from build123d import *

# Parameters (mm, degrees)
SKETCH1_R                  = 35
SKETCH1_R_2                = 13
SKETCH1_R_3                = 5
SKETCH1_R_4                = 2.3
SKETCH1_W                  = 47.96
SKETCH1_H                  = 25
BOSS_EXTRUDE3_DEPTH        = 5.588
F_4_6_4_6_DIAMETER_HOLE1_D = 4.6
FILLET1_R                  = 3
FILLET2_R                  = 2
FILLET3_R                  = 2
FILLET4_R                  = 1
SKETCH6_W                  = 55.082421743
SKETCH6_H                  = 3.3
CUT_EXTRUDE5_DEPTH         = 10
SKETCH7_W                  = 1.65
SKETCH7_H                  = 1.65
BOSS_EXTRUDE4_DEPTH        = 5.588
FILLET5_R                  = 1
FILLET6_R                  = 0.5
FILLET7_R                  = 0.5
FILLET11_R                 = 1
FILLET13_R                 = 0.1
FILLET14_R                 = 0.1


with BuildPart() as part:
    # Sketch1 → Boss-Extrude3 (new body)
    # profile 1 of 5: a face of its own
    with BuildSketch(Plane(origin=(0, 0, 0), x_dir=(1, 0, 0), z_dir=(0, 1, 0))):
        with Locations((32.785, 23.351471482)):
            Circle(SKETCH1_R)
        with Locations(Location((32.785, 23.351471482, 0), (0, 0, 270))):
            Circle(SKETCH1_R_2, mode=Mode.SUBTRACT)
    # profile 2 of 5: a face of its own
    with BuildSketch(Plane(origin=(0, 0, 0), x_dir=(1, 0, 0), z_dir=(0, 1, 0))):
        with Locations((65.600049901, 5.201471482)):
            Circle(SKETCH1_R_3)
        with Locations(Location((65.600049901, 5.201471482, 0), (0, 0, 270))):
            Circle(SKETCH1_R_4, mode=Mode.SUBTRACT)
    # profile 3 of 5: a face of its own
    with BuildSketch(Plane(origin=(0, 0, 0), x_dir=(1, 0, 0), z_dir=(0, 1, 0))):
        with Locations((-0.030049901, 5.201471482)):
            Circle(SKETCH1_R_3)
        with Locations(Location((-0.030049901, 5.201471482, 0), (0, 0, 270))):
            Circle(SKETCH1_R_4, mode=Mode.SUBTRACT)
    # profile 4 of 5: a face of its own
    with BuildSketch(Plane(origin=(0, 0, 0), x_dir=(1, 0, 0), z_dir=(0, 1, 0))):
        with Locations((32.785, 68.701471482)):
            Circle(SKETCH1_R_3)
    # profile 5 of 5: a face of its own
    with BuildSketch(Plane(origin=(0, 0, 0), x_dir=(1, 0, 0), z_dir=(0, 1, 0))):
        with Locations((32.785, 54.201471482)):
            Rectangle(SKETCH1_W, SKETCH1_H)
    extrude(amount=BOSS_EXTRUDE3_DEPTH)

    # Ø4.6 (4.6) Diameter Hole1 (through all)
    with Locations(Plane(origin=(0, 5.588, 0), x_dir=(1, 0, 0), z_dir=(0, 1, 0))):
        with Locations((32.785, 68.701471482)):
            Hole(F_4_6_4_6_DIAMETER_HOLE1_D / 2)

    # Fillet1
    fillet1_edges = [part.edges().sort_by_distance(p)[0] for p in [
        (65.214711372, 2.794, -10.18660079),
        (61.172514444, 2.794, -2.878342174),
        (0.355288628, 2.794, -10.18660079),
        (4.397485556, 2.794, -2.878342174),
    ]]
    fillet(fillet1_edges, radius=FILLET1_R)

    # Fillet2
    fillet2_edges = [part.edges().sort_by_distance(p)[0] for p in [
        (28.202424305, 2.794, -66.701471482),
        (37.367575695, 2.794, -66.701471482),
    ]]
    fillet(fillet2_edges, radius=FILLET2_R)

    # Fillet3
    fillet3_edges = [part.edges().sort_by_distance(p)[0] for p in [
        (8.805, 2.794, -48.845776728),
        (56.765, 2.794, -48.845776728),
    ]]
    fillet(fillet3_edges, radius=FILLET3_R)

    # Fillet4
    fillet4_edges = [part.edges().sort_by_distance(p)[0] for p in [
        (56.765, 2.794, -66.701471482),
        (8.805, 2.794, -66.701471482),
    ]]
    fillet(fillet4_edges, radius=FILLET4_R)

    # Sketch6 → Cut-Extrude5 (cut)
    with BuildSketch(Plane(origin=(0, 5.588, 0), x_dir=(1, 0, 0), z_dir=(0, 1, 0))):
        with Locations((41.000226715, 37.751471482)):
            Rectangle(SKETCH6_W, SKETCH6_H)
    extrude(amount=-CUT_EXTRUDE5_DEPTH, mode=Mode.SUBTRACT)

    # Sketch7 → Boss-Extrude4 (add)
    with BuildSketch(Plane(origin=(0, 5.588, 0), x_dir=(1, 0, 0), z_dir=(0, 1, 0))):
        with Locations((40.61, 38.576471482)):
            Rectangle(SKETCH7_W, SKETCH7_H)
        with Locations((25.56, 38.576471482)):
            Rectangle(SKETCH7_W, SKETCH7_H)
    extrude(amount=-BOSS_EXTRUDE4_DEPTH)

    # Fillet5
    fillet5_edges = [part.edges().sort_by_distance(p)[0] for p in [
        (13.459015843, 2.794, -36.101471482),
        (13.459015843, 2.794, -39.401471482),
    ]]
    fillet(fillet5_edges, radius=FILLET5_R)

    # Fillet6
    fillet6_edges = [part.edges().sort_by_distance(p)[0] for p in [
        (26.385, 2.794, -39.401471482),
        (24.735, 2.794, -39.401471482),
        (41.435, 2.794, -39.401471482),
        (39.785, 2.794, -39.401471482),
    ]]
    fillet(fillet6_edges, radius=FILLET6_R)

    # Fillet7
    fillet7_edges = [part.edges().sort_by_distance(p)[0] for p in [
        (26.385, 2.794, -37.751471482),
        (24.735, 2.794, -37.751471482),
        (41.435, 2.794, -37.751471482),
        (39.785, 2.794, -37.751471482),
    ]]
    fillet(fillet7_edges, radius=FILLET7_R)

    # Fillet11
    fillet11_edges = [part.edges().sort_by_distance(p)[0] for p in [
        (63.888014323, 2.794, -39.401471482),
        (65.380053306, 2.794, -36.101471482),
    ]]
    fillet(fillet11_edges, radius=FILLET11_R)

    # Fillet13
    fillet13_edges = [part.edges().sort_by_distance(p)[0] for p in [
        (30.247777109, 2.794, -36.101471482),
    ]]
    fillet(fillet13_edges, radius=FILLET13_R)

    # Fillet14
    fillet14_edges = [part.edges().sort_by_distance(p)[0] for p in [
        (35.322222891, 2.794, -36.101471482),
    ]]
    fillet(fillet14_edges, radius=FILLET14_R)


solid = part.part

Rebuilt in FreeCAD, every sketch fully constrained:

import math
import FreeCAD as App
import Part
import Sketcher
Q = App.Units.Quantity


def edges_at(feature, points):
    """Names of the edges that pass closest to the given points."""
    edges = feature.Shape.Edges
    near = lambda p: min(range(len(edges)), key=lambda i: edges[i].distToShape(Part.Vertex(*p))[0])
    return sorted({f"Edge{near(p) + 1}" for p in points})


def add_polygon(sketch, points):
    """Adds a closed chain of lines whose ends are joined by coincident constraints."""
    first, n = sketch.GeometryCount, len(points)
    for a, b in zip(points, points[1:] + points[:1]):
        sketch.addGeometry(Part.LineSegment(App.Vector(*a, 0), App.Vector(*b, 0)), False)
    for i in range(n):
        sketch.addConstraint(Sketcher.Constraint("Coincident", first + i, 2, first + (i + 1) % n, 1))

doc = App.newDocument("Part")
body = doc.addObject("PartDesign::Body", "Body")

# Sketch on XZ plane
sketch1 = body.newObject("Sketcher::SketchObject", "Sketch")
sketch1.AttachmentSupport = (doc.getObject("XZ_Plane"), [""])
sketch1.MapMode = "FlatFace"
sketch1.addGeometry(Part.ArcOfCircle(Part.Circle(App.Vector(32.785, -23.351471, 0), App.Vector(0, 0, 1), 35), math.radians(-46.753157), math.radians(22.094738)), False)
sketch1.addGeometry(Part.LineSegment(App.Vector(56.765, -48.845777, 0), App.Vector(56.765, -66.701471, 0)), False)
sketch1.addGeometry(Part.LineSegment(App.Vector(56.765, -66.701471, 0), App.Vector(37.367576, -66.701471, 0)), False)
sketch1.addGeometry(Part.ArcOfCircle(Part.Circle(App.Vector(32.785, -68.701471, 0), App.Vector(0, 0, 1), 5), math.radians(156.421822), math.radians(383.578178)), False)
sketch1.addGeometry(Part.LineSegment(App.Vector(28.202424, -66.701471, 0), App.Vector(8.805, -66.701471, 0)), False)
sketch1.addGeometry(Part.LineSegment(App.Vector(8.805, -66.701471, 0), App.Vector(8.805, -48.845777, 0)), False)
sketch1.addGeometry(Part.ArcOfCircle(Part.Circle(App.Vector(32.785, -23.351471, 0), App.Vector(0, 0, 1), 35), math.radians(157.905262), math.radians(226.753157)), False)
sketch1.addGeometry(Part.ArcOfCircle(Part.Circle(App.Vector(-0.03005, -5.201471, 0), App.Vector(0, 0, 1), 5), math.radians(27.686011), math.radians(274.420037)), False)
sketch1.addGeometry(Part.ArcOfCircle(Part.Circle(App.Vector(32.785, -23.351471, 0), App.Vector(0, 0, 1), 35), math.radians(35.799214), math.radians(144.200786)), False)
sketch1.addGeometry(Part.ArcOfCircle(Part.Circle(App.Vector(65.60005, -5.201471, 0), App.Vector(0, 0, 1), 5), math.radians(-94.420037), math.radians(152.313989)), False)
sketch1.addGeometry(Part.Circle(App.Vector(32.785, -23.351471, 0), App.Vector(0, 0, 1), 13), False)
sketch1.addGeometry(Part.Circle(App.Vector(65.60005, -5.201471, 0), App.Vector(0, 0, 1), 2.3), False)
sketch1.addGeometry(Part.Circle(App.Vector(-0.03005, -5.201471, 0), App.Vector(0, 0, 1), 2.3), False)
sketch1.addConstraint(Sketcher.Constraint("Coincident", 0, 1, 1, 1))
sketch1.addConstraint(Sketcher.Constraint("Coincident", 1, 2, 2, 1))
sketch1.addConstraint(Sketcher.Constraint("Coincident", 2, 2, 3, 2))
sketch1.addConstraint(Sketcher.Constraint("Coincident", 3, 1, 4, 1))
sketch1.addConstraint(Sketcher.Constraint("Coincident", 4, 2, 5, 1))
sketch1.addConstraint(Sketcher.Constraint("Coincident", 5, 2, 6, 2))
sketch1.addConstraint(Sketcher.Constraint("Coincident", 6, 1, 7, 2))
sketch1.addConstraint(Sketcher.Constraint("Coincident", 7, 1, 8, 2))
sketch1.addConstraint(Sketcher.Constraint("Coincident", 8, 1, 9, 2))
sketch1.addConstraint(Sketcher.Constraint("Coincident", 9, 1, 0, 2))
sketch1.addConstraint(Sketcher.Constraint("Vertical", 1))
sketch1.addConstraint(Sketcher.Constraint("Horizontal", 2))
sketch1.addConstraint(Sketcher.Constraint("Horizontal", 4))
sketch1.addConstraint(Sketcher.Constraint("Vertical", 5))
sketch1.addConstraint(Sketcher.Constraint("Coincident", 6, 3, 0, 3))
sketch1.addConstraint(Sketcher.Constraint("Coincident", 8, 3, 0, 3))
sketch1.addConstraint(Sketcher.Constraint("Coincident", 10, 3, 0, 3))
sketch1.addConstraint(Sketcher.Constraint("Coincident", 11, 3, 9, 3))
sketch1.addConstraint(Sketcher.Constraint("Coincident", 12, 3, 7, 3))
sketch1.addConstraint(Sketcher.Constraint("Equal", 0, 6))
sketch1.addConstraint(Sketcher.Constraint("Equal", 3, 7))
sketch1.addConstraint(Sketcher.Constraint("Equal", 6, 8))
sketch1.addConstraint(Sketcher.Constraint("Equal", 7, 9))
sketch1.addConstraint(Sketcher.Constraint("Equal", 11, 12))
sketch1.addConstraint(Sketcher.Constraint("Horizontal", 7, 3, 9, 3))
sketch1.addConstraint(Sketcher.Constraint("Horizontal", 2, 2, 3, 1))
sketch1.addConstraint(Sketcher.Constraint("Horizontal", 0, 1, 5, 2))
sketch1.addConstraint(Sketcher.Constraint("Horizontal", 7, 1, 8, 1))
sketch1.addConstraint(Sketcher.Constraint("Vertical", 0, 3, 3, 3))
sketch1.addConstraint(Sketcher.Constraint("Diameter", 10, Q("26 mm")))
sketch1.addConstraint(Sketcher.Constraint("Radius", 0, Q("35 mm")))
sketch1.addConstraint(Sketcher.Constraint("Radius", 3, Q("5 mm")))
sketch1.addConstraint(Sketcher.Constraint("Diameter", 11, Q("4.6 mm")))
sketch1.addConstraint(Sketcher.Constraint("DistanceY", 3, 3, 1, 2, Q("2 mm")))
sketch1.addConstraint(Sketcher.Constraint("DistanceY", 3, 3, 7, 3, Q("63.5 mm")))
sketch1.addConstraint(Sketcher.Constraint("DistanceY", 3, 3, 0, 3, Q("45.35 mm")))
sketch1.addConstraint(Sketcher.Constraint("DistanceX", 3, 3, 0, 1, Q("23.98 mm")))
sketch1.addConstraint(Sketcher.Constraint("DistanceX", -1, 1, 0, 3, Q("32.785 mm")))
sketch1.addConstraint(Sketcher.Constraint("DistanceY", 6, 1, -1, 1, Q("10.186601 mm")))
sketch1.addConstraint(Sketcher.Constraint("DistanceX", 7, 3, 9, 3, Q("65.6301 mm")))
pad1 = body.newObject("PartDesign::Pad", "Pad")
pad1.Profile = sketch1
pad1.Length = 5.588
pad1.Reversed = True

# Sketch on XZ plane
sketch2 = body.newObject("Sketcher::SketchObject", "Sketch001")
sketch2.AttachmentSupport = (doc.getObject("XZ_Plane"), [""])
sketch2.MapMode = "FlatFace"
sketch2.AttachmentOffset = App.Placement(App.Vector(0, 0, -5.588), App.Rotation())
sketch2.addGeometry(Part.Circle(App.Vector(32.785, -68.701471, 0), App.Vector(0, 0, 1), 2.3), False)
sketch2.addConstraint(Sketcher.Constraint("Diameter", 0, Q("4.6 mm")))
sketch2.addConstraint(Sketcher.Constraint("DistanceX", -1, 1, 0, 3, Q("32.785 mm")))
sketch2.addConstraint(Sketcher.Constraint("DistanceY", 0, 3, -1, 1, Q("68.701471 mm")))
doc.recompute()
hole = body.newObject("PartDesign::Hole", "Hole")
hole.Profile = sketch2
hole.ThreadType = "None"
hole.Diameter = 4.6
hole.DepthType = "ThroughAll"
hole.Reversed = True
doc.recompute()

fillet = body.newObject("PartDesign::Fillet", "Fillet")
fillet.Base = (hole, edges_at(hole, [
    (65.215, 2.794, -10.187),
    (61.173, 2.794, -2.878),
    (0.355, 2.794, -10.187),
    (4.397, 2.794, -2.878),
]))
fillet.Radius = 3
doc.recompute()

fillet2 = body.newObject("PartDesign::Fillet", "Fillet001")
fillet2.Base = (fillet, edges_at(fillet, [(28.202, 2.794, -66.701), (37.368, 2.794, -66.701)]))
fillet2.Radius = 2
doc.recompute()

fillet3 = body.newObject("PartDesign::Fillet", "Fillet002")
fillet3.Base = (fillet2, edges_at(fillet2, [(8.805, 2.794, -48.846), (56.765, 2.794, -48.846)]))
fillet3.Radius = 2
doc.recompute()

fillet4 = body.newObject("PartDesign::Fillet", "Fillet003")
fillet4.Base = (fillet3, edges_at(fillet3, [(56.765, 2.794, -66.701), (8.805, 2.794, -66.701)]))
fillet4.Radius = 1

# Sketch on XZ plane
sketch3 = body.newObject("Sketcher::SketchObject", "Sketch002")
sketch3.AttachmentSupport = (doc.getObject("XZ_Plane"), [""])
sketch3.MapMode = "FlatFace"
sketch3.AttachmentOffset = App.Placement(App.Vector(0, 0, -5.588), App.Rotation())
add_polygon(sketch3, [(13.459016, -39.401471), (13.459016, -36.101471), (68.541438, -36.101471), (68.541438, -39.401471)])  # lines 0-3
sketch3.addConstraint(Sketcher.Constraint("Vertical", 0))
sketch3.addConstraint(Sketcher.Constraint("Horizontal", 1))
sketch3.addConstraint(Sketcher.Constraint("Vertical", 2))
sketch3.addConstraint(Sketcher.Constraint("Horizontal", 3))
sketch3.addConstraint(Sketcher.Constraint("DistanceY", 0, 1, 0, 2, Q("3.3 mm")))
sketch3.addConstraint(Sketcher.Constraint("DistanceX", 1, 1, 1, 2, Q("55.082422 mm")))
sketch3.addConstraint(Sketcher.Constraint("DistanceY", 0, 2, -1, 1, Q("36.101471 mm")))
sketch3.addConstraint(Sketcher.Constraint("DistanceX", -1, 1, 0, 2, Q("13.459016 mm")))
pocket1 = body.newObject("PartDesign::Pocket", "Pocket")
pocket1.Profile = sketch3
pocket1.Length = 10
pocket1.Reversed = True

# Sketch on XZ plane
sketch4 = body.newObject("Sketcher::SketchObject", "Sketch003")
sketch4.AttachmentSupport = (doc.getObject("XZ_Plane"), [""])
sketch4.MapMode = "FlatFace"
sketch4.AttachmentOffset = App.Placement(App.Vector(0, 0, -5.588), App.Rotation())
add_polygon(sketch4, [(39.785, -39.401471), (39.785, -37.751471), (41.435, -37.751471), (41.435, -39.401471)])  # lines 0-3
add_polygon(sketch4, [(24.735, -39.401471), (24.735, -37.751471), (26.385, -37.751471), (26.385, -39.401471)])  # lines 4-7
sketch4.addConstraint(Sketcher.Constraint("Vertical", 0))
sketch4.addConstraint(Sketcher.Constraint("Horizontal", 1))
sketch4.addConstraint(Sketcher.Constraint("Vertical", 2))
sketch4.addConstraint(Sketcher.Constraint("Horizontal", 3))
sketch4.addConstraint(Sketcher.Constraint("Vertical", 4))
sketch4.addConstraint(Sketcher.Constraint("Horizontal", 5))
sketch4.addConstraint(Sketcher.Constraint("Vertical", 6))
sketch4.addConstraint(Sketcher.Constraint("Horizontal", 7))
sketch4.addConstraint(Sketcher.Constraint("Horizontal", 1, 2, 4, 2))
sketch4.addConstraint(Sketcher.Constraint("Horizontal", 3, 2, 6, 2))
sketch4.addConstraint(Sketcher.Constraint("Equal", 3, 5))
sketch4.addConstraint(Sketcher.Constraint("Equal", 7, 0))
sketch4.addConstraint(Sketcher.Constraint("DistanceX", 1, 1, 1, 2, Q("1.65 mm")))
sketch4.addConstraint(Sketcher.Constraint("DistanceX", 4, 2, 1, 2, Q("16.7 mm")))
sketch4.addConstraint(Sketcher.Constraint("DistanceX", -1, 1, 0, 2, Q("39.785 mm")))
sketch4.addConstraint(Sketcher.Constraint("DistanceY", 0, 2, -1, 1, Q("37.751471 mm")))
pad2 = body.newObject("PartDesign::Pad", "Pad001")
pad2.Profile = sketch4
pad2.Length = 5.588
doc.recompute()

fillet5 = body.newObject("PartDesign::Fillet", "Fillet004")
fillet5.Base = (pad2, edges_at(pad2, [(13.459, 2.794, -36.101), (13.459, 2.794, -39.401)]))
fillet5.Radius = 1
doc.recompute()

fillet6 = body.newObject("PartDesign::Fillet", "Fillet005")
fillet6.Base = (fillet5, edges_at(fillet5, [
    (26.385, 2.794, -39.401),
    (24.735, 2.794, -39.401),
    (41.435, 2.794, -39.401),
    (39.785, 2.794, -39.401),
]))
fillet6.Radius = 0.5
doc.recompute()

fillet7 = body.newObject("PartDesign::Fillet", "Fillet006")
fillet7.Base = (fillet6, edges_at(fillet6, [
    (26.385, 2.794, -37.751),
    (24.735, 2.794, -37.751),
    (41.435, 2.794, -37.751),
    (39.785, 2.794, -37.751),
]))
fillet7.Radius = 0.5
doc.recompute()

fillet8 = body.newObject("PartDesign::Fillet", "Fillet007")
fillet8.Base = (fillet7, edges_at(fillet7, [(63.888, 2.794, -39.401), (65.38, 2.794, -36.101)]))
fillet8.Radius = 1
doc.recompute()

fillet9 = body.newObject("PartDesign::Fillet", "Fillet008")
fillet9.Base = (fillet8, edges_at(fillet8, [(30.248, 2.794, -36.101)]))
fillet9.Radius = 0.1
doc.recompute()

fillet10 = body.newObject("PartDesign::Fillet", "Fillet009")
fillet10.Base = (fillet9, edges_at(fillet9, [(35.322, 2.794, -36.101)]))
fillet10.Radius = 0.1

doc.recompute()
